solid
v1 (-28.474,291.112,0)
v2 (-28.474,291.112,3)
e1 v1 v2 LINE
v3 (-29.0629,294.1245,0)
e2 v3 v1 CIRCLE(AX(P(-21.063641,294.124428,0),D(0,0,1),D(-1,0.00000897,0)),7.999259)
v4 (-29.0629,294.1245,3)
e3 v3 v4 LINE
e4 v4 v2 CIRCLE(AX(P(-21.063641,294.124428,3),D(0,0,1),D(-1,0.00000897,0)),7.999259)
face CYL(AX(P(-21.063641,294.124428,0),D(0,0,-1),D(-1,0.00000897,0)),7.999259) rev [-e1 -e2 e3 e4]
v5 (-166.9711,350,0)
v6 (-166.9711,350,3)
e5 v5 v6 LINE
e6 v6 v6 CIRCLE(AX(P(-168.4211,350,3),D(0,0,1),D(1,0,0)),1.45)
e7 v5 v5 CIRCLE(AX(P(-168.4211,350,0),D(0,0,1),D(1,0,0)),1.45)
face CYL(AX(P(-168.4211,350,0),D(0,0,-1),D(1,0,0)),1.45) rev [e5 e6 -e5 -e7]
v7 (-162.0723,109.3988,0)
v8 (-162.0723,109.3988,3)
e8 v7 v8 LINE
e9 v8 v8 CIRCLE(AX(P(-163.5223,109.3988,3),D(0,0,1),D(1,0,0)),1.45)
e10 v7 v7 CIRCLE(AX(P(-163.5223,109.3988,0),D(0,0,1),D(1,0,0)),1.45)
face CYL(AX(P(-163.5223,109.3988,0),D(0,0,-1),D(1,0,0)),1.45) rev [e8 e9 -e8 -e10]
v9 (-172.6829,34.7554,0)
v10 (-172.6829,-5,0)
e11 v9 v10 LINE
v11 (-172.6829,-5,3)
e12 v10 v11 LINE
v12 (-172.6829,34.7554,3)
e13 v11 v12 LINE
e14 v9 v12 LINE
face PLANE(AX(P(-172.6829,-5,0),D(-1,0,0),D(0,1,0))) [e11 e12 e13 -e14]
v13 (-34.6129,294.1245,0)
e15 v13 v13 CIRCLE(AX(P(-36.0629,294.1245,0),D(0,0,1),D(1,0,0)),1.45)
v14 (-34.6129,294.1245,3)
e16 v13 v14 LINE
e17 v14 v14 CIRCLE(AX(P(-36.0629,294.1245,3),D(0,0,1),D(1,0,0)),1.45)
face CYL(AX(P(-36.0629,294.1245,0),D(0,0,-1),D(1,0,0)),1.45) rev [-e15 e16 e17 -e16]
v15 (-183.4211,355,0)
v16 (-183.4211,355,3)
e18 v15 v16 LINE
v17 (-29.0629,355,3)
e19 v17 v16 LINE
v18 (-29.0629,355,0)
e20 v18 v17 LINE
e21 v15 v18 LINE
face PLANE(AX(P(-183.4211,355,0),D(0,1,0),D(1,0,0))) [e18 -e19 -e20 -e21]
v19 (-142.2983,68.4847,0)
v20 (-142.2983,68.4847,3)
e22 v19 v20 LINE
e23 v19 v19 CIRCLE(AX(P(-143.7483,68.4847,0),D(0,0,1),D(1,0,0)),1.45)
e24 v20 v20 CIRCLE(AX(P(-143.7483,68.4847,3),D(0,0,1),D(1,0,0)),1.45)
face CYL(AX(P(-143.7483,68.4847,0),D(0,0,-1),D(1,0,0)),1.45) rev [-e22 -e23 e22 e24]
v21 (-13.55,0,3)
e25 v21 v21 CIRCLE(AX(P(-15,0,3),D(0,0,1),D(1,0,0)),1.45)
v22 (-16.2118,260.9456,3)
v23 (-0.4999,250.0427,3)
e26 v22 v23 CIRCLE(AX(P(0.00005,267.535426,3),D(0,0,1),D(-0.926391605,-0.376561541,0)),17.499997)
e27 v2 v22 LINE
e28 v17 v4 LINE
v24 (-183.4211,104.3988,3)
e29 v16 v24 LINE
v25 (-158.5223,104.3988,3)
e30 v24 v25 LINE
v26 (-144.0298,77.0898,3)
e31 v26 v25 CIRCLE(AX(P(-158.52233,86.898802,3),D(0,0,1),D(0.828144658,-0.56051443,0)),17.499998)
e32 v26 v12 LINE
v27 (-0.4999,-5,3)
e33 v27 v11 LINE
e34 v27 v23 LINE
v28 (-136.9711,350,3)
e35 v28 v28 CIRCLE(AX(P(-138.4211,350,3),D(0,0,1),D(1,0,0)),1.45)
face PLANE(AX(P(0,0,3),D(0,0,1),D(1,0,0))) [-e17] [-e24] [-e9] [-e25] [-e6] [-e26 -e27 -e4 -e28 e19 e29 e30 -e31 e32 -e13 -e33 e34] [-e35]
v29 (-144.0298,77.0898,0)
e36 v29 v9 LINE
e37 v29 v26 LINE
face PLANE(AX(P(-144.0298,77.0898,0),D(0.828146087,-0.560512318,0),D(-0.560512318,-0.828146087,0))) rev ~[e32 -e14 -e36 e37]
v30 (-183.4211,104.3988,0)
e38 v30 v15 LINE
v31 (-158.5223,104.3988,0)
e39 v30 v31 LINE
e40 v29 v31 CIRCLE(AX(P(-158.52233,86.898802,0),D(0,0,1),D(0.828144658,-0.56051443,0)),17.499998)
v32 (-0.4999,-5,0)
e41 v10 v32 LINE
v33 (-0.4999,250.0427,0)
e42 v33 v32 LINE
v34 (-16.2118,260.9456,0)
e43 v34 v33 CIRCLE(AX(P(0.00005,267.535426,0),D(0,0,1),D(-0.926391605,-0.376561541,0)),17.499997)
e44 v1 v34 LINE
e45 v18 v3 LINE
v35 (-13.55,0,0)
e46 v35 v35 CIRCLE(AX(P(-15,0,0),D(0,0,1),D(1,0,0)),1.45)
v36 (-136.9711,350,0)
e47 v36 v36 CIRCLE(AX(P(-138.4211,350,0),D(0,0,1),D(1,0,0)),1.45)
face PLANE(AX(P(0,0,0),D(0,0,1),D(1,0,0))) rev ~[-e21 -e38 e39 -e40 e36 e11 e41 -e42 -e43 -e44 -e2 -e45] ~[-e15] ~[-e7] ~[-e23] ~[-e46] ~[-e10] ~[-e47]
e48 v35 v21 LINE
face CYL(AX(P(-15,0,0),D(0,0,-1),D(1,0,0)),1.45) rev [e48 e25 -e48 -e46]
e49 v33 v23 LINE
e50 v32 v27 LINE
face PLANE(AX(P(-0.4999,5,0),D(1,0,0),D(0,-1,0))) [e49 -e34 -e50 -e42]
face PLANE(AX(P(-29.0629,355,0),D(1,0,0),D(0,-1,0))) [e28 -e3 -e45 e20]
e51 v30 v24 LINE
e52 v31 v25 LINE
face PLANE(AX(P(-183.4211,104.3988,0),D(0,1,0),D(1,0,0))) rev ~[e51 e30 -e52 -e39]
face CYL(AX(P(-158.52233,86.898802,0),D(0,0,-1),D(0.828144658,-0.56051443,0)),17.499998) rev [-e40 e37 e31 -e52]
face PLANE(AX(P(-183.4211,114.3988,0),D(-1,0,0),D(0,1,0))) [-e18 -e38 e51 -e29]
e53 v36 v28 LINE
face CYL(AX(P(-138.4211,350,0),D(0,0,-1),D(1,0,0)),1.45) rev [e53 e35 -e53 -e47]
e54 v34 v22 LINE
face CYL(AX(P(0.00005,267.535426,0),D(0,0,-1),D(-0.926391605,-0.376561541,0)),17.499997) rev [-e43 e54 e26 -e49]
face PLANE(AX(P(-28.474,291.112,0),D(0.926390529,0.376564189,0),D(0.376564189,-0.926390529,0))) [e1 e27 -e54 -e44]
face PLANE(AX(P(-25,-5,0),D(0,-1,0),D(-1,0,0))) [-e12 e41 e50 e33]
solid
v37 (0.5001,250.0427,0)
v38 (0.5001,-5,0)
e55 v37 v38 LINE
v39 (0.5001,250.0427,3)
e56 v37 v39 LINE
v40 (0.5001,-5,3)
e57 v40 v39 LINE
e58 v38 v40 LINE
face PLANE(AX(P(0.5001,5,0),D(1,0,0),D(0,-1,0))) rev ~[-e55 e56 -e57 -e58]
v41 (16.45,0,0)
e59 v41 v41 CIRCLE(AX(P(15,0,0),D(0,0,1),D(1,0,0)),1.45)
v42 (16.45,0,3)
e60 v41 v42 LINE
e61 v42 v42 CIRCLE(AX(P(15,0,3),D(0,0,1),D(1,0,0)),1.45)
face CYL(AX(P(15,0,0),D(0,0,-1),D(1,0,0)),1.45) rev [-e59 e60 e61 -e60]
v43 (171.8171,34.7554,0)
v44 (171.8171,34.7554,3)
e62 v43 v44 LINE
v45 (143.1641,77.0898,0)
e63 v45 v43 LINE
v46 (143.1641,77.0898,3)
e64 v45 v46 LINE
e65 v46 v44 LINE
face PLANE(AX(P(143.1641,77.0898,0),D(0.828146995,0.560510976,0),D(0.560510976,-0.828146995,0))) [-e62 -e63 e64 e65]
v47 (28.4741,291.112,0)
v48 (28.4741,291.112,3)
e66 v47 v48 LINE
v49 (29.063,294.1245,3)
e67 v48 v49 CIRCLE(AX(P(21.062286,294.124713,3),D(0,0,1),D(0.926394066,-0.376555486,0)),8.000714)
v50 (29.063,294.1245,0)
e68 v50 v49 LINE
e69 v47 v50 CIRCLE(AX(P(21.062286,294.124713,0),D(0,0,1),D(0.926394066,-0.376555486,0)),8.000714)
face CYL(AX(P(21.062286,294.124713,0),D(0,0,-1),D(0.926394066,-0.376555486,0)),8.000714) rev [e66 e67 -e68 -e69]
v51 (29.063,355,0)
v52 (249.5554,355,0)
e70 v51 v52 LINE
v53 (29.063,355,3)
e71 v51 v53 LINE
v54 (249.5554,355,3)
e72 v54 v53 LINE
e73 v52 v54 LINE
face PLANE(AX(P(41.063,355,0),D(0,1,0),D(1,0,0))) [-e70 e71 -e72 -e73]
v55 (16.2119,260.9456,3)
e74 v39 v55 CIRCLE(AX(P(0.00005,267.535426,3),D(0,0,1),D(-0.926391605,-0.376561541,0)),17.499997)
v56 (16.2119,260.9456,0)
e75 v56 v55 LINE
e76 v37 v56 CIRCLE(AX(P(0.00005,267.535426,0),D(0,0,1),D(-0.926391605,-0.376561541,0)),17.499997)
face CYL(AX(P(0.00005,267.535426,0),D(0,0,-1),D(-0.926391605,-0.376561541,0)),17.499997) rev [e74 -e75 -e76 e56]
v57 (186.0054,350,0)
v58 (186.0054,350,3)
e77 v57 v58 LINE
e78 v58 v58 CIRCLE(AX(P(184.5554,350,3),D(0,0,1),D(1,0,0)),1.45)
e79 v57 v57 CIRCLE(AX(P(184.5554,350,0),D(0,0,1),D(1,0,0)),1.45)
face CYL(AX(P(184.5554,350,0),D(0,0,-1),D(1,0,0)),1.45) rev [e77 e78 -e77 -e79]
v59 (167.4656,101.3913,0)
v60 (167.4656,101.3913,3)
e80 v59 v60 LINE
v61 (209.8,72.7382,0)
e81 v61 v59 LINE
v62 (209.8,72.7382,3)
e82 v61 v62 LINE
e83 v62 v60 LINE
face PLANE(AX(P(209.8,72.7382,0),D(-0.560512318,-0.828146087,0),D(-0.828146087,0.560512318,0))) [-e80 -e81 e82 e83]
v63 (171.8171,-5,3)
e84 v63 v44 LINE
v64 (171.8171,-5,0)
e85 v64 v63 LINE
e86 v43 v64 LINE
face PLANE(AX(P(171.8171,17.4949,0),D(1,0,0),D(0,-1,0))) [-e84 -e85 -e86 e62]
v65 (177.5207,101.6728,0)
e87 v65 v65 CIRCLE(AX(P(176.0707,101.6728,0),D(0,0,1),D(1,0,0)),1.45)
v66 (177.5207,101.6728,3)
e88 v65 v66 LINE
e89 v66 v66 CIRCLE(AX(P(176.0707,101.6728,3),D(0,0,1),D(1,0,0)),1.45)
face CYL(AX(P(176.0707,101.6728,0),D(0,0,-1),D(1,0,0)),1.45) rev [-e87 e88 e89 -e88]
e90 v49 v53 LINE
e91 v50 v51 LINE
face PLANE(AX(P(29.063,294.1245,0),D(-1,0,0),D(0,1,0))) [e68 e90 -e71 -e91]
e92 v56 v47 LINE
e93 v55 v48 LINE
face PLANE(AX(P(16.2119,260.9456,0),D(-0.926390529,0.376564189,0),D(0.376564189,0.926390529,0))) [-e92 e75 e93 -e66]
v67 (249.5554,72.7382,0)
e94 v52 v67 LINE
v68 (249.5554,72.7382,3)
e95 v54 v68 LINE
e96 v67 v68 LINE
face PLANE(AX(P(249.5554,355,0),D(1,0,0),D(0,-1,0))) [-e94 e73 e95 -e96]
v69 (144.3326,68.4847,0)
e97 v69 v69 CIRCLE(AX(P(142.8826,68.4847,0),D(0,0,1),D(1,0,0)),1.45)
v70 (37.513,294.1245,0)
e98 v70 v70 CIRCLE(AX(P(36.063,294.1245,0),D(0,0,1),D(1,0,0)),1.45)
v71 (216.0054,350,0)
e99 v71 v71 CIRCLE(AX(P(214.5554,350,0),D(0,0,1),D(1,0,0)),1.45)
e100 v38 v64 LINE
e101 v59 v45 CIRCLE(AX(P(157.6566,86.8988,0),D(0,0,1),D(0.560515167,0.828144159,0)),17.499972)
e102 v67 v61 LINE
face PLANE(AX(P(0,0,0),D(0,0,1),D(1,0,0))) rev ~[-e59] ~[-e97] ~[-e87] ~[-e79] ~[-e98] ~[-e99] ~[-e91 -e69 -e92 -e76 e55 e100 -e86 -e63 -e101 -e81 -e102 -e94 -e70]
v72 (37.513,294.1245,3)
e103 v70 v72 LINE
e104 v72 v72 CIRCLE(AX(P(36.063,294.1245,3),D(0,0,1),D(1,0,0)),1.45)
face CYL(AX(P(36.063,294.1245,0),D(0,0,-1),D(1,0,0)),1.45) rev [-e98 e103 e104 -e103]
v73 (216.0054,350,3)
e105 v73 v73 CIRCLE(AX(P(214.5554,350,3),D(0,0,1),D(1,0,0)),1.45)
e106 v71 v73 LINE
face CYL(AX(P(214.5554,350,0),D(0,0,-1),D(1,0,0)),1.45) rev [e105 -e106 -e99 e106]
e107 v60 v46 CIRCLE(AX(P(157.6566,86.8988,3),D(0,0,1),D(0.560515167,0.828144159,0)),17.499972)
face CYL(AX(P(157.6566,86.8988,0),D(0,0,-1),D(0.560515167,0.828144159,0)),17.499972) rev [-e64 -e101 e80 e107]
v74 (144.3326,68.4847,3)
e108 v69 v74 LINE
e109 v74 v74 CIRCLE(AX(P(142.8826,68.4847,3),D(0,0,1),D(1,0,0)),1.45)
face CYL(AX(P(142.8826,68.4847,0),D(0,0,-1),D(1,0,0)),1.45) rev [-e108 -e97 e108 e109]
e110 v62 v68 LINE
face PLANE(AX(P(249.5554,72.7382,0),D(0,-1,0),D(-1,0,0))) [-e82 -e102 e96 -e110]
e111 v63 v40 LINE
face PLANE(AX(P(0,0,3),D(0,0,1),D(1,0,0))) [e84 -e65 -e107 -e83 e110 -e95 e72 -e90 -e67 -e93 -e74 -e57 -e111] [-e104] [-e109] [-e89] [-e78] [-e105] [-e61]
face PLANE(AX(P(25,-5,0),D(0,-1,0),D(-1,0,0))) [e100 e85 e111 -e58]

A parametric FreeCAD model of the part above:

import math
import FreeCAD as App
import Part
import Sketcher
Q = App.Units.Quantity

doc = App.newDocument("Part")
params = doc.addObject("Spreadsheet::Sheet", "Params")
for row, (alias, value) in enumerate([
    ("sketch1_radius", "8 mm"),
    ("sketch1_diameter", "2.9 mm"),
    ("sketch1_radius2", "17.5 mm"),
    ("pad1_length", "3 mm"),
], start=1):
    params.set(f"A{row}", alias)
    params.set(f"B{row}", "=" + value)
    params.setAlias(f"B{row}", alias)

body = doc.addObject("PartDesign::Body", "Body")
body.AllowCompound = True

# Sketch on XY plane
sketch1 = doc.addObject("Sketcher::SketchObject", "Sketch")
body.addObject(sketch1)
sketch1.AttachmentSupport = (doc.XY_Plane, [""])
sketch1.MapMode = "FlatFace"
sketch1.addGeometry([
    Part.LineSegment(App.Vector(-172.7, -5, 0), App.Vector(-0.5, -5, 0)),  # 0
    Part.LineSegment(App.Vector(-0.5, -5, 0), App.Vector(-0.5, 250, 0)),  # 1
    Part.ArcOfCircle(Part.Circle(App.Vector(0, 267.5, 0), App.Vector(0, 0, 1), 17.5), math.radians(-158), math.radians(-92)),  # 2
    Part.LineSegment(App.Vector(-16.2, 260.9, 0), App.Vector(-28.5, 291.1, 0)),  # 3
    Part.ArcOfCircle(Part.Circle(App.Vector(-21.1, 294.1, 0), App.Vector(0, 0, 1), 8), math.radians(180), math.radians(202)),  # 4
    Part.LineSegment(App.Vector(-29.1, 294.1, 0), App.Vector(-29.1, 355, 0)),  # 5
    Part.LineSegment(App.Vector(-29.1, 355, 0), App.Vector(-183.4, 355, 0)),  # 6
    Part.LineSegment(App.Vector(-183.4, 355, 0), App.Vector(-183.4, 104.4, 0)),  # 7
    Part.LineSegment(App.Vector(-183.4, 104.4, 0), App.Vector(-158.5, 104.4, 0)),  # 8
    Part.ArcOfCircle(Part.Circle(App.Vector(-158.5, 86.9, 0), App.Vector(0, 0, 1), 17.5), math.radians(-34), math.radians(90)),  # 9
    Part.LineSegment(App.Vector(-144, 77.1, 0), App.Vector(-172.7, 34.8, 0)),  # 10
    Part.LineSegment(App.Vector(-172.7, 34.8, 0), App.Vector(-172.7, -5, 0)),  # 11
    Part.Circle(App.Vector(-143.7, 68.5, 0), App.Vector(0, 0, 1), 1.4),  # 12
    Part.Circle(App.Vector(-163.5, 109.4, 0), App.Vector(0, 0, 1), 1.4),  # 13
    Part.Circle(App.Vector(-168.4, 350, 0), App.Vector(0, 0, 1), 1.4),  # 14
    Part.Circle(App.Vector(-138.4, 350, 0), App.Vector(0, 0, 1), 1.4),  # 15
    Part.Circle(App.Vector(-36.1, 294.1, 0), App.Vector(0, 0, 1), 1.4),  # 16
    Part.Circle(App.Vector(-15, 0, 0), App.Vector(0, 0, 1), 1.4),  # 17
    Part.LineSegment(App.Vector(0.5, -5, 0), App.Vector(171.8, -5, 0)),  # 18
    Part.LineSegment(App.Vector(171.8, -5, 0), App.Vector(171.8, 34.8, 0)),  # 19
    Part.LineSegment(App.Vector(171.8, 34.8, 0), App.Vector(143.2, 77.1, 0)),  # 20
    Part.ArcOfCircle(Part.Circle(App.Vector(157.7, 86.9, 0), App.Vector(0, 0, 1), 17.5), math.radians(56), math.radians(214)),  # 21
    Part.LineSegment(App.Vector(167.5, 101.4, 0), App.Vector(209.8, 72.7, 0)),  # 22
    Part.LineSegment(App.Vector(209.8, 72.7, 0), App.Vector(249.6, 72.7, 0)),  # 23
    Part.LineSegment(App.Vector(249.6, 72.7, 0), App.Vector(249.6, 355, 0)),  # 24
    Part.LineSegment(App.Vector(249.6, 355, 0), App.Vector(29.1, 355, 0)),  # 25
    Part.LineSegment(App.Vector(29.1, 355, 0), App.Vector(29.1, 294.1, 0)),  # 26
    Part.ArcOfCircle(Part.Circle(App.Vector(21.1, 294.1, 0), App.Vector(0, 0, 1), 8), math.radians(-22), math.radians(0)),  # 27
    Part.LineSegment(App.Vector(28.5, 291.1, 0), App.Vector(16.2, 260.9, 0)),  # 28
    Part.ArcOfCircle(Part.Circle(App.Vector(0, 267.5, 0), App.Vector(0, 0, 1), 17.5), math.radians(-88), math.radians(-22)),  # 29
    Part.LineSegment(App.Vector(0.5, 250, 0), App.Vector(0.5, -5, 0)),  # 30
    Part.Circle(App.Vector(15, 0, 0), App.Vector(0, 0, 1), 1.4),  # 31
    Part.Circle(App.Vector(36.1, 294.1, 0), App.Vector(0, 0, 1), 1.4),  # 32
    Part.Circle(App.Vector(214.6, 350, 0), App.Vector(0, 0, 1), 1.4),  # 33
    Part.Circle(App.Vector(184.6, 350, 0), App.Vector(0, 0, 1), 1.4),  # 34
    Part.Circle(App.Vector(142.9, 68.5, 0), App.Vector(0, 0, 1), 1.4),  # 35
    Part.Circle(App.Vector(176.1, 101.7, 0), App.Vector(0, 0, 1), 1.4),  # 36
], False)
sketch1.addConstraint([
    Sketcher.Constraint("Coincident", 0, 2, 1, 1),
    Sketcher.Constraint("Coincident", 1, 2, 2, 2),
    Sketcher.Constraint("Tangent", 2, 1, 3, 1),
    Sketcher.Constraint("Tangent", 3, 2, 4, 2),
    Sketcher.Constraint("Tangent", 4, 1, 5, 1),
    Sketcher.Constraint("Coincident", 5, 2, 6, 1),
    Sketcher.Constraint("Coincident", 6, 2, 7, 1),
    Sketcher.Constraint("Coincident", 7, 2, 8, 1),
    Sketcher.Constraint("Tangent", 8, 2, 9, 2),
    Sketcher.Constraint("Tangent", 9, 1, 10, 1),
    Sketcher.Constraint("Coincident", 10, 2, 11, 1),
    Sketcher.Constraint("Coincident", 11, 2, 0, 1),
    Sketcher.Constraint("Coincident", 18, 2, 19, 1),
    Sketcher.Constraint("Coincident", 19, 2, 20, 1),
    Sketcher.Constraint("Tangent", 20, 2, 21, 2),
    Sketcher.Constraint("Tangent", 21, 1, 22, 1),
    Sketcher.Constraint("Coincident", 22, 2, 23, 1),
    Sketcher.Constraint("Coincident", 23, 2, 24, 1),
    Sketcher.Constraint("Coincident", 24, 2, 25, 1),
    Sketcher.Constraint("Coincident", 25, 2, 26, 1),
    Sketcher.Constraint("Tangent", 26, 2, 27, 2),
    Sketcher.Constraint("Tangent", 27, 1, 28, 1),
    Sketcher.Constraint("Tangent", 28, 2, 29, 2),
    Sketcher.Constraint("Coincident", 29, 1, 30, 1),
    Sketcher.Constraint("Coincident", 30, 2, 18, 1),
    Sketcher.Constraint("Horizontal", 0),
    Sketcher.Constraint("Vertical", 1),
    Sketcher.Constraint("Vertical", 5),
    Sketcher.Constraint("Horizontal", 6),
    Sketcher.Constraint("Vertical", 7),
    Sketcher.Constraint("Horizontal", 8),
    Sketcher.Constraint("Vertical", 11),
    Sketcher.Constraint("Horizontal", 18),
    Sketcher.Constraint("Vertical", 19),
    Sketcher.Constraint("Horizontal", 23),
    Sketcher.Constraint("Vertical", 24),
    Sketcher.Constraint("Horizontal", 25),
    Sketcher.Constraint("Vertical", 26),
    Sketcher.Constraint("Vertical", 30),
    Sketcher.Constraint("Coincident", 29, 3, 2, 3),
    Sketcher.Constraint("Equal", 2, 9),
    Sketcher.Constraint("Equal", 12, 13),
    Sketcher.Constraint("Equal", 13, 14),
    Sketcher.Constraint("Equal", 14, 15),
    Sketcher.Constraint("Equal", 15, 16),
    Sketcher.Constraint("Equal", 16, 17),
    Sketcher.Constraint("Equal", 9, 21),
    Sketcher.Constraint("Equal", 4, 27),
    Sketcher.Constraint("Equal", 21, 29),
    Sketcher.Constraint("Equal", 17, 31),
    Sketcher.Constraint("Equal", 31, 32),
    Sketcher.Constraint("Equal", 32, 33),
    Sketcher.Constraint("Equal", 33, 34),
    Sketcher.Constraint("Equal", 34, 35),
    Sketcher.Constraint("Equal", 35, 36),
    Sketcher.Constraint("Symmetric", 17, 3, 31, 3, -1, 1),
    Sketcher.Constraint("Symmetric", 4, 3, 27, 3, -2),
    Sketcher.Constraint("Symmetric", 16, 3, 32, 3, -2),
    Sketcher.Constraint("Symmetric", 1, 2, 29, 1, -2),
    Sketcher.Constraint("PointOnObject", 17, 3, -1),
    Sketcher.Constraint("Perpendicular", 10, 22),
    Sketcher.Constraint("Horizontal", 14, 3, 15, 3),
    Sketcher.Constraint("Horizontal", 4, 3, 16, 3),
    Sketcher.Constraint("Horizontal", 9, 3, 21, 3),
    Sketcher.Constraint("Horizontal", 15, 3, 33, 3),
    Sketcher.Constraint("Horizontal", 33, 3, 34, 3),
    Sketcher.Constraint("Horizontal", 12, 3, 35, 3),
    Sketcher.Constraint("Horizontal", 11, 2, 18, 2),
    Sketcher.Constraint("Horizontal", 10, 2, 19, 2),
    Sketcher.Constraint("Horizontal", 9, 1, 20, 2),
    Sketcher.Constraint("Horizontal", 6, 2, 24, 2),
    Sketcher.Constraint("Equal", 23, 11),
    Sketcher.Constraint("Equal", 20, 22),
    Sketcher.Constraint("DistanceX", 17, 3, -1, 1, 15.0),
    Sketcher.Constraint("Radius", 4, 8.0),
    Sketcher.Constraint("DistanceX", 14, 3, 15, 3, 30.0),
    Sketcher.Constraint("DistanceX", 16, 3, 4, 3, 15.0),
    Sketcher.Constraint("DistanceX", 34, 3, 33, 3, 30.0),
    Sketcher.Constraint("DistanceX", 6, 2, 14, 3, 15.0),
    Sketcher.Constraint("DistanceX", 1, 2, 29, 1, 1.0),
    Sketcher.Constraint("Diameter", 12, 2.9),
    Sketcher.Constraint("Radius", 2, 17.5),
    Sketcher.Constraint("DistanceY", -1, 1, 14, 3, 350.0),
    Sketcher.Constraint("DistanceY", 0, 2, -1, 1, 5.0),
    Sketcher.Constraint("DistanceY", -1, 1, 5, 2, 355.0),
    Sketcher.Constraint("DistanceX", 13, 3, 9, 3, 5.0),
    Sketcher.Constraint("DistanceY", 7, 2, 13, 3, 5.0),
    Sketcher.Constraint("DistanceX", 33, 3, 24, 2, 35.0),
    Sketcher.Constraint("DistanceX", -1, 1, 22, 2, 209.8),
    Sketcher.Constraint("Angle", 3, Q("112.121 deg")),
    Sketcher.Constraint("Angle", 20, Q("124.0911 deg")),
    Sketcher.Constraint("DistanceX", 0, 1, 0, 2, 172.183),
    Sketcher.Constraint("DistanceX", 18, 1, 18, 2, 171.317),
    Sketcher.Constraint("DistanceX", 6, 2, 6, 1, 154.3582),
    Sketcher.Constraint("DistanceX", 8, 1, 8, 2, 24.8988),
    Sketcher.Constraint("DistanceX", 23, 1, 23, 2, 39.7554),
    Sketcher.Constraint("DistanceY", 1, 1, 1, 2, 255.0427),
    Sketcher.Constraint("DistanceX", 9, 3, 12, 3, 14.774),
    Sketcher.Constraint("DistanceY", 12, 3, 9, 3, 18.414),
    Sketcher.Constraint("DistanceX", 35, 3, 21, 3, 14.774),
    Sketcher.Constraint("DistanceX", 21, 3, 36, 3, 18.414),
    Sketcher.Constraint("DistanceY", 21, 3, 36, 3, 14.774),
])
sketch1.setExpression("Constraints[74]", "Params.sketch1_radius")
sketch1.setExpression("Constraints[80]", "Params.sketch1_diameter")
sketch1.setExpression("Constraints[81]", "Params.sketch1_radius2")
pad1 = doc.addObject("PartDesign::Pad", "Pad")
body.addObject(pad1)
pad1.Profile = sketch1
pad1.setExpression("Length", "Params.pad1_length")

doc.recompute()
